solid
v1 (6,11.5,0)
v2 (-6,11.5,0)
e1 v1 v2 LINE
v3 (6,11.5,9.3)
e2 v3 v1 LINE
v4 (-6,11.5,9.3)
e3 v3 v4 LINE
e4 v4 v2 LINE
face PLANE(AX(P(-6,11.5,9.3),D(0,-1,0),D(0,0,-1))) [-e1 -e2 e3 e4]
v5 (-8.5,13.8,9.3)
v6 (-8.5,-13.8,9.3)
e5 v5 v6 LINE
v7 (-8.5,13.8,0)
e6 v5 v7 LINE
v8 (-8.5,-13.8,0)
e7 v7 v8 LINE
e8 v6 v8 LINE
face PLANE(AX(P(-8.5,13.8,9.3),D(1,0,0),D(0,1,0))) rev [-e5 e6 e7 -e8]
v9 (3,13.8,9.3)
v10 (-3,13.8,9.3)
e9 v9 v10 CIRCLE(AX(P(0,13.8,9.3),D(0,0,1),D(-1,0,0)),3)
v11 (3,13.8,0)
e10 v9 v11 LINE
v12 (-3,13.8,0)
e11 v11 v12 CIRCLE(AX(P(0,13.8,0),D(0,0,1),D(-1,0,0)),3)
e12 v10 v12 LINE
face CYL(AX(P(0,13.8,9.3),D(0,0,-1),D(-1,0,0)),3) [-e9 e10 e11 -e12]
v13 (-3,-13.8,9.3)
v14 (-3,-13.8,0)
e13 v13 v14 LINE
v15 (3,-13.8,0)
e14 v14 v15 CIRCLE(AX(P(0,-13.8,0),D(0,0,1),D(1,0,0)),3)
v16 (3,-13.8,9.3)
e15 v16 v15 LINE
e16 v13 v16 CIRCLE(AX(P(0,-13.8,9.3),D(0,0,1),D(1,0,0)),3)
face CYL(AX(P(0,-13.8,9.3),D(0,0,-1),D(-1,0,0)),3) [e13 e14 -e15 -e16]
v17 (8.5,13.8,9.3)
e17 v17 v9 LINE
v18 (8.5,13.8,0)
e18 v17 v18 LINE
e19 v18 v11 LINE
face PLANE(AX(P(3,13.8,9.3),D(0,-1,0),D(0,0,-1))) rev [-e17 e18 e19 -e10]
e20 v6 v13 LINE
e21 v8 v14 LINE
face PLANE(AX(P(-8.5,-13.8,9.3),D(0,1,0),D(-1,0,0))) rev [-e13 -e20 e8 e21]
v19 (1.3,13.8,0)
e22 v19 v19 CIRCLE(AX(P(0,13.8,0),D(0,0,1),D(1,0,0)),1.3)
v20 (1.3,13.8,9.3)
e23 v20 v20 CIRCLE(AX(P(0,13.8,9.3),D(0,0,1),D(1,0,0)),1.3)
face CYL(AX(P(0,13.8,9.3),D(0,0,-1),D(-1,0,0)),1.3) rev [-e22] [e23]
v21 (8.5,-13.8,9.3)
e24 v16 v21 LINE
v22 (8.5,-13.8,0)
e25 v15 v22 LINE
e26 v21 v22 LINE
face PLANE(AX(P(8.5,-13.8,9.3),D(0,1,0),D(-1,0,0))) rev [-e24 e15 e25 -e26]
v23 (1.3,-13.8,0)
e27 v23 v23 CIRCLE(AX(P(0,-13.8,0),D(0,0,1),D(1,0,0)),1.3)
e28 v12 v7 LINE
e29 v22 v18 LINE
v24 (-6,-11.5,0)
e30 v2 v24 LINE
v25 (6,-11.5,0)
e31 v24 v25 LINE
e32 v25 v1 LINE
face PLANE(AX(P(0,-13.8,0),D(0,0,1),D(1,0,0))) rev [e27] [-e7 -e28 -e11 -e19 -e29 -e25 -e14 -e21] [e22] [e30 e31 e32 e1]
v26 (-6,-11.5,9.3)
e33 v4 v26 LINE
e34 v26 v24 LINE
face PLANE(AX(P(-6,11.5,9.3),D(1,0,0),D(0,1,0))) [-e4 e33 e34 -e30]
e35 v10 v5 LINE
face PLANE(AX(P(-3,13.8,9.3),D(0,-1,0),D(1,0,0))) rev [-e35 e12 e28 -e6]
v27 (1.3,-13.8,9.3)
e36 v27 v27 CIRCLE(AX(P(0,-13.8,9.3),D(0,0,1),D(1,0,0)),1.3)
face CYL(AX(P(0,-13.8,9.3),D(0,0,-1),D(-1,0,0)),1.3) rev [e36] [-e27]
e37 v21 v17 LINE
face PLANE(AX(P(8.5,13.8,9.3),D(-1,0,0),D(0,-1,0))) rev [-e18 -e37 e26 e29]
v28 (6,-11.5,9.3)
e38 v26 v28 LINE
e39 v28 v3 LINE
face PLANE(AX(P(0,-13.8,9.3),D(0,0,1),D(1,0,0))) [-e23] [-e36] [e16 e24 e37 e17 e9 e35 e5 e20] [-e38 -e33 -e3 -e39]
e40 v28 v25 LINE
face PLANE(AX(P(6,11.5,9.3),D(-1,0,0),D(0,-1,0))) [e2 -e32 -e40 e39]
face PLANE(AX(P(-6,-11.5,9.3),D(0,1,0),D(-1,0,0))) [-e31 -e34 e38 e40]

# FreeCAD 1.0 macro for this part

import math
import FreeCAD as App
import Part
import Sketcher

V = App.Vector


def add_polygon(sketch, points):
    """Adds a closed chain of lines whose ends are joined by coincident constraints."""
    first, n = sketch.GeometryCount, len(points)
    for a, b in zip(points, points[1:] + points[:1]):
        sketch.addGeometry(Part.LineSegment(App.Vector(*a, 0), App.Vector(*b, 0)), False)
    for i in range(n):
        sketch.addConstraint(Sketcher.Constraint("Coincident", first + i, 2, first + (i + 1) % n, 1))

doc = App.newDocument("Part")
body = doc.addObject("PartDesign::Body", "Body")

sketch1 = body.newObject("Sketcher::SketchObject", "Sketch")
sketch1.AttachmentSupport = (doc.getObject("XY_Plane"), [""])
sketch1.MapMode = "FlatFace"
sketch1.addGeometry(Part.LineSegment(V(-3, 13.8, 0), V(-8.5, 13.8, 0)), False)
sketch1.addGeometry(Part.LineSegment(V(-8.5, 13.8, 0), V(-8.5, -13.8, 0)), False)
sketch1.addGeometry(Part.LineSegment(V(-8.5, -13.8, 0), V(-3, -13.8, 0)), False)
sketch1.addGeometry(Part.ArcOfCircle(Part.Circle(V(0, -13.8, 0), V(0, 0, 1), 3), math.radians(180), math.radians(360)), False)
sketch1.addGeometry(Part.LineSegment(V(3, -13.8, 0), V(8.5, -13.8, 0)), False)
sketch1.addGeometry(Part.LineSegment(V(8.5, -13.8, 0), V(8.5, 13.8, 0)), False)
sketch1.addGeometry(Part.LineSegment(V(8.5, 13.8, 0), V(3, 13.8, 0)), False)
sketch1.addGeometry(Part.ArcOfCircle(Part.Circle(V(0, 13.8, 0), V(0, 0, 1), 3), math.radians(0), math.radians(180)), False)
sketch1.addGeometry(Part.Circle(V(0, -13.8, 0), V(0, 0, 1), 1.3), False)
add_polygon(sketch1, [(6, -11.5), (-6, -11.5), (-6, 11.5), (6, 11.5)])
sketch1.addGeometry(Part.Circle(V(0, 13.8, 0), V(0, 0, 1), 1.3), False)
sketch1.addConstraint([
    Sketcher.Constraint("Coincident", 0, 2, 1, 1),
    Sketcher.Constraint("Coincident", 1, 2, 2, 1),
    Sketcher.Constraint("Coincident", 2, 2, 3, 1),
    Sketcher.Constraint("Coincident", 3, 2, 4, 1),
    Sketcher.Constraint("Coincident", 4, 2, 5, 1),
    Sketcher.Constraint("Coincident", 5, 2, 6, 1),
    Sketcher.Constraint("Coincident", 6, 2, 7, 1),
    Sketcher.Constraint("Coincident", 7, 2, 0, 1),
    Sketcher.Constraint("Horizontal", 0),
    Sketcher.Constraint("Vertical", 1),
    Sketcher.Constraint("Horizontal", 2),
    Sketcher.Constraint("Horizontal", 4),
    Sketcher.Constraint("Vertical", 5),
    Sketcher.Constraint("Horizontal", 6),
    Sketcher.Constraint("Horizontal", 9),
    Sketcher.Constraint("Vertical", 10),
    Sketcher.Constraint("Horizontal", 11),
    Sketcher.Constraint("Vertical", 12),
    Sketcher.Constraint("Coincident", 8, 3, 3, 3),
    Sketcher.Constraint("Coincident", 13, 3, 7, 3),
    Sketcher.Constraint("Equal", 3, 7),
    Sketcher.Constraint("Equal", 8, 13),
    Sketcher.Constraint("Symmetric", 3, 3, 7, 3, -1, 1),
    Sketcher.Constraint("Symmetric", 0, 2, 4, 2, -1, 1),
    Sketcher.Constraint("Symmetric", 9, 2, 11, 2, -1, 1),
    Sketcher.Constraint("Symmetric", 2, 2, 3, 2, -2),
    Sketcher.Constraint("Horizontal", 13, 3, 0, 2),
    Sketcher.Constraint("Horizontal", 0, 2, 5, 2),
    Sketcher.Constraint("Radius", 3, 3.0),
    Sketcher.Constraint("Diameter", 8, 2.6),
    Sketcher.Constraint("DistanceX", 9, 2, 9, 1, 12.0),
    Sketcher.Constraint("DistanceY", 10, 1, 10, 2, 23.0),
    Sketcher.Constraint("DistanceX", 0, 2, 0, 1, 5.5),
    Sketcher.Constraint("DistanceY", 1, 2, 1, 1, 27.6),
])
pad1 = body.newObject("PartDesign::Pad", "Pad")
pad1.Profile = sketch1
pad1.Length = 9.3

doc.recompute()
